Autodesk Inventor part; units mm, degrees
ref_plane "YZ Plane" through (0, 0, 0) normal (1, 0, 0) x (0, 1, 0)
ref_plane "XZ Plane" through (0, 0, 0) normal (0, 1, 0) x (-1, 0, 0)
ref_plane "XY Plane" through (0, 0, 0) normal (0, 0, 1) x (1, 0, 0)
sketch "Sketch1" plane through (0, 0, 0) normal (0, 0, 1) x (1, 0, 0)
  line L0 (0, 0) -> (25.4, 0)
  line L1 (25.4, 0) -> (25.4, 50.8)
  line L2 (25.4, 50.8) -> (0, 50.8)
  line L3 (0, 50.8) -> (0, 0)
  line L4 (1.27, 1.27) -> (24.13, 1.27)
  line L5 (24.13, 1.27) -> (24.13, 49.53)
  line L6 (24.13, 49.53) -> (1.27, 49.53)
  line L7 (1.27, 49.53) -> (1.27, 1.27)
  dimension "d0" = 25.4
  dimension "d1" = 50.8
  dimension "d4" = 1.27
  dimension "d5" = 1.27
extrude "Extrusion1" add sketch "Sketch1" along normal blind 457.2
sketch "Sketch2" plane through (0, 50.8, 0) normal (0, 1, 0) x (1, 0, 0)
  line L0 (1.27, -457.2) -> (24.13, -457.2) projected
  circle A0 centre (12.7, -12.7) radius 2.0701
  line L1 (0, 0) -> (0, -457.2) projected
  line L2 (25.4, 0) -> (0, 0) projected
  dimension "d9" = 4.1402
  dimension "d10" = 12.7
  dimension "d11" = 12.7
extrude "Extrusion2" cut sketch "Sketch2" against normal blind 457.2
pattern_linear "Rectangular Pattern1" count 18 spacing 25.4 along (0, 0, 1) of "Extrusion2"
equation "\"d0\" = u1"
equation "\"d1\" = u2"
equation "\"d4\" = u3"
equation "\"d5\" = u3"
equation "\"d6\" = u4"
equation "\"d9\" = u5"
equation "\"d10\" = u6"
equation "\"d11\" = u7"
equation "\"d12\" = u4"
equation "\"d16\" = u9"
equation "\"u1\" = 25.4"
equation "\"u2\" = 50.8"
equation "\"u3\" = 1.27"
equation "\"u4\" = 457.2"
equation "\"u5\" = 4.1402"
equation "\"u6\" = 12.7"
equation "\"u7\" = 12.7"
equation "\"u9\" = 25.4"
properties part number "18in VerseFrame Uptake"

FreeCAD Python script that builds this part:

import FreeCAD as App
import Part
import Sketcher
Q = App.Units.Quantity

doc = App.newDocument("Part")
body = doc.addObject("PartDesign::Body", "Body")

# Sketch on XY plane
sketch1 = body.newObject("Sketcher::SketchObject", "Sketch")
sketch1.AttachmentSupport = (doc.getObject("XY_Plane"), [""])
sketch1.MapMode = "FlatFace"
sketch1.addGeometry([
    Part.LineSegment(App.Vector(0, 51, 0), App.Vector(0, 0, 0)),  # 0
    Part.LineSegment(App.Vector(0, 0, 0), App.Vector(25, 0, 0)),  # 1
    Part.LineSegment(App.Vector(25, 0, 0), App.Vector(25, 51, 0)),  # 2
    Part.LineSegment(App.Vector(25, 51, 0), App.Vector(0, 51, 0)),  # 3
    Part.LineSegment(App.Vector(24, 1, 0), App.Vector(1, 1, 0)),  # 4
    Part.LineSegment(App.Vector(1, 1, 0), App.Vector(1, 50, 0)),  # 5
    Part.LineSegment(App.Vector(1, 50, 0), App.Vector(24, 50, 0)),  # 6
    Part.LineSegment(App.Vector(24, 50, 0), App.Vector(24, 1, 0)),  # 7
], False)
sketch1.addConstraint([
    Sketcher.Constraint("Coincident", 0, 2, 1, 1),
    Sketcher.Constraint("Coincident", 1, 2, 2, 1),
    Sketcher.Constraint("Coincident", 2, 2, 3, 1),
    Sketcher.Constraint("Coincident", 3, 2, 0, 1),
    Sketcher.Constraint("Coincident", 4, 2, 5, 1),
    Sketcher.Constraint("Coincident", 5, 2, 6, 1),
    Sketcher.Constraint("Coincident", 6, 2, 7, 1),
    Sketcher.Constraint("Coincident", 7, 2, 4, 1),
    Sketcher.Constraint("Vertical", 0),
    Sketcher.Constraint("Horizontal", 1),
    Sketcher.Constraint("Vertical", 2),
    Sketcher.Constraint("Horizontal", 3),
    Sketcher.Constraint("Horizontal", 4),
    Sketcher.Constraint("Vertical", 5),
    Sketcher.Constraint("Horizontal", 6),
    Sketcher.Constraint("Vertical", 7),
    Sketcher.Constraint("Coincident", 0, 2, -1, 1),
    Sketcher.Constraint("DistanceX", 1, 1, 1, 2, Q("1 in")),
    Sketcher.Constraint("DistanceY", 0, 2, 0, 1, Q("2 in")),
    Sketcher.Constraint("DistanceX", -1, 1, 4, 2, Q("0.05 in")),
    Sketcher.Constraint("DistanceY", -1, 1, 4, 2, Q("0.05 in")),
    Sketcher.Constraint("DistanceY", 5, 2, 3, 2, Q("0.05 in")),
    Sketcher.Constraint("DistanceX", 6, 2, 2, 2, Q("0.05 in")),
])
pad1 = body.newObject("PartDesign::Pad", "Pad")
pad1.Profile = sketch1
pad1.Length = Q("18 in")

# Sketch on XZ plane
sketch2 = body.newObject("Sketcher::SketchObject", "Sketch001")
sketch2.AttachmentSupport = (doc.getObject("XZ_Plane"), [""])
sketch2.MapMode = "FlatFace"
sketch2.AttachmentOffset = App.Placement(App.Vector(0, 0, -2 * 25.4), App.Rotation())
sketch2.addGeometry(Part.Circle(App.Vector(12.7, 12.7, 0), App.Vector(0, 0, 1), 2.1), False)
sketch2.addConstraint([
    Sketcher.Constraint("Diameter", 0, Q("0.163 in")),
    Sketcher.Constraint("DistanceX", -1, 1, 0, 3, Q("0.5 in")),
    Sketcher.Constraint("DistanceY", -1, 1, 0, 3, Q("0.5 in")),
])
pocket1 = body.newObject("PartDesign::Pocket", "Pocket")
pocket1.Profile = sketch2
pocket1.Length = Q("18 in")
pocket1.Reversed = True
doc.recompute()

linearpattern = body.newObject("PartDesign::LinearPattern", "LinearPattern")
linearpattern.Originals = [pocket1]
linearpattern.Direction = (doc.getObject("Z_Axis"), [""])
linearpattern.Mode = "offset"
linearpattern.Offset = Q("1 in")
linearpattern.Occurrences = 18
body.Tip = linearpattern

doc.recompute()
